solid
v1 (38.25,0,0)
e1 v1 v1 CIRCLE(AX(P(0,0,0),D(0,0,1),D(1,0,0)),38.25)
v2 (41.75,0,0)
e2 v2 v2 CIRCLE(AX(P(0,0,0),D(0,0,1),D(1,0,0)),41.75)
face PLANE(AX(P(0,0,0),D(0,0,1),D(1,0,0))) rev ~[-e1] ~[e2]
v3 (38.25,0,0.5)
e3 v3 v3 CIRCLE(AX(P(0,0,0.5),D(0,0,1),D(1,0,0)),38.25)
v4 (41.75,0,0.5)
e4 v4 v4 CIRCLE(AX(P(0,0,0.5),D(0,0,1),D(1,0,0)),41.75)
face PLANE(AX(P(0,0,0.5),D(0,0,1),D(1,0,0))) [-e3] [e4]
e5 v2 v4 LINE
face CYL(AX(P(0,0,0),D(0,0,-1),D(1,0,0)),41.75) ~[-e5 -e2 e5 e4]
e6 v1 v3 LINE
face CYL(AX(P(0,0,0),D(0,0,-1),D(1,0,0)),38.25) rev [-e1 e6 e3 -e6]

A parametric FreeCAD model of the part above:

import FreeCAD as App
import Part
import Sketcher
from FreeCAD import Vector
Q = App.Units.Quantity

doc = App.newDocument("Part")
body = doc.addObject("PartDesign::Body", "Body")

# Sketch on XY plane
sketch1 = doc.addObject("Sketcher::SketchObject", "Sketch")
body.addObject(sketch1)
sketch1.AttachmentSupport = (doc.XY_Plane, [""])
sketch1.MapMode = "FlatFace"
sketch1.addGeometry([
    Part.Circle(Vector(0, 0, 0), Vector(0, 0, 1), 42),
    Part.Circle(Vector(0, 0, 0), Vector(0, 0, 1), 38),
], False)
sketch1.addConstraint([
    Sketcher.Constraint("Coincident", 0, 3, -1, 1),
    Sketcher.Constraint("Coincident", 1, 3, -1, 1),
    Sketcher.Constraint("Diameter", 0, Q("83.5 mm")),
    Sketcher.Constraint("Diameter", 1, Q("76.5 mm")),
])
pad1 = doc.addObject("PartDesign::Pad", "Pad")
body.addObject(pad1)
pad1.Profile = sketch1
pad1.Length = 0.5

doc.recompute()
